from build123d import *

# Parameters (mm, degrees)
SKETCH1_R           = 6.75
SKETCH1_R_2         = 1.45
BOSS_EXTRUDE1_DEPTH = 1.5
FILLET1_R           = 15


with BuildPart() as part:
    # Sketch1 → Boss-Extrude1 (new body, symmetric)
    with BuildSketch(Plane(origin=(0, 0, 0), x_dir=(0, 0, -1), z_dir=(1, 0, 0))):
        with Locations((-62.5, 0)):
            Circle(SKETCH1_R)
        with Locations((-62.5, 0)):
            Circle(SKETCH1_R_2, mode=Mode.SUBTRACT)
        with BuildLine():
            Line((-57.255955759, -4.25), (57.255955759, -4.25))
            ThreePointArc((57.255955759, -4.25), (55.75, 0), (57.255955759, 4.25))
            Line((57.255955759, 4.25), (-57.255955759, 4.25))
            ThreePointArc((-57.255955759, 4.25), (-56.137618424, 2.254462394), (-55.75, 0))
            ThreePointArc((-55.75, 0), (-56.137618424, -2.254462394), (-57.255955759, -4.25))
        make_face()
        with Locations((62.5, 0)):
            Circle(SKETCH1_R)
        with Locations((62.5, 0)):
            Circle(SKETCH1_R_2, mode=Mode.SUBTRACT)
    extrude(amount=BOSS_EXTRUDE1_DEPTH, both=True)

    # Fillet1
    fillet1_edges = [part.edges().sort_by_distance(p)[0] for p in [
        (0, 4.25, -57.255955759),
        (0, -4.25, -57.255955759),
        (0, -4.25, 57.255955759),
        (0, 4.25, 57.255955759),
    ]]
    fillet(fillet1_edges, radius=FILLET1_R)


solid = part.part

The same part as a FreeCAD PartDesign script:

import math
import FreeCAD as App
import Part
import Sketcher
Q = App.Units.Quantity


def edges_at(feature, points):
    """Names of the edges that pass closest to the given points."""
    edges = feature.Shape.Edges
    near = lambda p: min(range(len(edges)), key=lambda i: edges[i].distToShape(Part.Vertex(*p))[0])
    return sorted({f"Edge{near(p) + 1}" for p in points})

doc = App.newDocument("Part")
params = doc.addObject("Spreadsheet::Sheet", "Params")
for row, (alias, value) in enumerate([
    ("sketch1_diameter", "2.9 mm"),
    ("sketch1_radius", "6.75 mm"),
    ("pad1_length", "3 mm"),
    ("fillet_radius", "15 mm"),
], start=1):
    params.set(f"A{row}", alias)
    params.set(f"B{row}", "=" + value)
    params.setAlias(f"B{row}", alias)

body = doc.addObject("PartDesign::Body", "Body")

sketch1 = body.newObject("Sketcher::SketchObject", "Sketch")
sketch1.AttachmentSupport = (doc.getObject("YZ_Plane"), [""])
sketch1.MapMode = "FlatFace"
sketch1.addGeometry([
    Part.ArcOfCircle(Part.Circle(App.Vector(0, 62.5, 0), App.Vector(0, 0, 1), 6.8), math.radians(-51), math.radians(231)),
    Part.LineSegment(App.Vector(-4.2, 57.3, 0), App.Vector(-4.2, -57.3, 0)),
    Part.ArcOfCircle(Part.Circle(App.Vector(0, -62.5, 0), App.Vector(0, 0, 1), 6.8), math.radians(129), math.radians(411)),
    Part.LineSegment(App.Vector(4.2, -57.3, 0), App.Vector(4.2, 57.3, 0)),
    Part.Circle(App.Vector(0, 62.5, 0), App.Vector(0, 0, 1), 1.4),
    Part.Circle(App.Vector(0, -62.5, 0), App.Vector(0, 0, 1), 1.4),
], False)
sketch1.addConstraint([
    Sketcher.Constraint("Coincident", 0, 2, 1, 1),
    Sketcher.Constraint("Coincident", 1, 2, 2, 1),
    Sketcher.Constraint("Coincident", 2, 2, 3, 1),
    Sketcher.Constraint("Coincident", 3, 2, 0, 1),
    Sketcher.Constraint("Vertical", 1),
    Sketcher.Constraint("Vertical", 3),
    Sketcher.Constraint("Coincident", 4, 3, 0, 3),
    Sketcher.Constraint("Coincident", 5, 3, 2, 3),
    Sketcher.Constraint("Equal", 0, 2),
    Sketcher.Constraint("Equal", 4, 5),
    Sketcher.Constraint("Symmetric", 0, 3, 2, 3, -1, 1),
    Sketcher.Constraint("Symmetric", 1, 2, 2, 2, -2),
    Sketcher.Constraint("Diameter", 4, Q("2.9 mm")),
    Sketcher.Constraint("Radius", 0, Q("6.75 mm")),
    Sketcher.Constraint("DistanceY", 2, 3, 0, 3, Q("125 mm")),
    Sketcher.Constraint("DistanceX", 1, 2, 2, 2, Q("8.5 mm")),
])
sketch1.setExpression("Constraints[12]", "Params.sketch1_diameter")
sketch1.setExpression("Constraints[13]", "Params.sketch1_radius")
pad1 = body.newObject("PartDesign::Pad", "Pad")
pad1.Profile = sketch1
pad1.setExpression("Length", "Params.pad1_length")
pad1.Midplane = True
doc.recompute()

fillet = body.newObject("PartDesign::Fillet", "Fillet")
fillet.Base = (pad1, edges_at(pad1, [
    (0, 4.25, -57.256),
    (0, -4.25, -57.256),
    (0, -4.25, 57.256),
    (0, 4.25, 57.256),
]))
fillet.setExpression("Radius", "Params.fillet_radius")

doc.recompute()
